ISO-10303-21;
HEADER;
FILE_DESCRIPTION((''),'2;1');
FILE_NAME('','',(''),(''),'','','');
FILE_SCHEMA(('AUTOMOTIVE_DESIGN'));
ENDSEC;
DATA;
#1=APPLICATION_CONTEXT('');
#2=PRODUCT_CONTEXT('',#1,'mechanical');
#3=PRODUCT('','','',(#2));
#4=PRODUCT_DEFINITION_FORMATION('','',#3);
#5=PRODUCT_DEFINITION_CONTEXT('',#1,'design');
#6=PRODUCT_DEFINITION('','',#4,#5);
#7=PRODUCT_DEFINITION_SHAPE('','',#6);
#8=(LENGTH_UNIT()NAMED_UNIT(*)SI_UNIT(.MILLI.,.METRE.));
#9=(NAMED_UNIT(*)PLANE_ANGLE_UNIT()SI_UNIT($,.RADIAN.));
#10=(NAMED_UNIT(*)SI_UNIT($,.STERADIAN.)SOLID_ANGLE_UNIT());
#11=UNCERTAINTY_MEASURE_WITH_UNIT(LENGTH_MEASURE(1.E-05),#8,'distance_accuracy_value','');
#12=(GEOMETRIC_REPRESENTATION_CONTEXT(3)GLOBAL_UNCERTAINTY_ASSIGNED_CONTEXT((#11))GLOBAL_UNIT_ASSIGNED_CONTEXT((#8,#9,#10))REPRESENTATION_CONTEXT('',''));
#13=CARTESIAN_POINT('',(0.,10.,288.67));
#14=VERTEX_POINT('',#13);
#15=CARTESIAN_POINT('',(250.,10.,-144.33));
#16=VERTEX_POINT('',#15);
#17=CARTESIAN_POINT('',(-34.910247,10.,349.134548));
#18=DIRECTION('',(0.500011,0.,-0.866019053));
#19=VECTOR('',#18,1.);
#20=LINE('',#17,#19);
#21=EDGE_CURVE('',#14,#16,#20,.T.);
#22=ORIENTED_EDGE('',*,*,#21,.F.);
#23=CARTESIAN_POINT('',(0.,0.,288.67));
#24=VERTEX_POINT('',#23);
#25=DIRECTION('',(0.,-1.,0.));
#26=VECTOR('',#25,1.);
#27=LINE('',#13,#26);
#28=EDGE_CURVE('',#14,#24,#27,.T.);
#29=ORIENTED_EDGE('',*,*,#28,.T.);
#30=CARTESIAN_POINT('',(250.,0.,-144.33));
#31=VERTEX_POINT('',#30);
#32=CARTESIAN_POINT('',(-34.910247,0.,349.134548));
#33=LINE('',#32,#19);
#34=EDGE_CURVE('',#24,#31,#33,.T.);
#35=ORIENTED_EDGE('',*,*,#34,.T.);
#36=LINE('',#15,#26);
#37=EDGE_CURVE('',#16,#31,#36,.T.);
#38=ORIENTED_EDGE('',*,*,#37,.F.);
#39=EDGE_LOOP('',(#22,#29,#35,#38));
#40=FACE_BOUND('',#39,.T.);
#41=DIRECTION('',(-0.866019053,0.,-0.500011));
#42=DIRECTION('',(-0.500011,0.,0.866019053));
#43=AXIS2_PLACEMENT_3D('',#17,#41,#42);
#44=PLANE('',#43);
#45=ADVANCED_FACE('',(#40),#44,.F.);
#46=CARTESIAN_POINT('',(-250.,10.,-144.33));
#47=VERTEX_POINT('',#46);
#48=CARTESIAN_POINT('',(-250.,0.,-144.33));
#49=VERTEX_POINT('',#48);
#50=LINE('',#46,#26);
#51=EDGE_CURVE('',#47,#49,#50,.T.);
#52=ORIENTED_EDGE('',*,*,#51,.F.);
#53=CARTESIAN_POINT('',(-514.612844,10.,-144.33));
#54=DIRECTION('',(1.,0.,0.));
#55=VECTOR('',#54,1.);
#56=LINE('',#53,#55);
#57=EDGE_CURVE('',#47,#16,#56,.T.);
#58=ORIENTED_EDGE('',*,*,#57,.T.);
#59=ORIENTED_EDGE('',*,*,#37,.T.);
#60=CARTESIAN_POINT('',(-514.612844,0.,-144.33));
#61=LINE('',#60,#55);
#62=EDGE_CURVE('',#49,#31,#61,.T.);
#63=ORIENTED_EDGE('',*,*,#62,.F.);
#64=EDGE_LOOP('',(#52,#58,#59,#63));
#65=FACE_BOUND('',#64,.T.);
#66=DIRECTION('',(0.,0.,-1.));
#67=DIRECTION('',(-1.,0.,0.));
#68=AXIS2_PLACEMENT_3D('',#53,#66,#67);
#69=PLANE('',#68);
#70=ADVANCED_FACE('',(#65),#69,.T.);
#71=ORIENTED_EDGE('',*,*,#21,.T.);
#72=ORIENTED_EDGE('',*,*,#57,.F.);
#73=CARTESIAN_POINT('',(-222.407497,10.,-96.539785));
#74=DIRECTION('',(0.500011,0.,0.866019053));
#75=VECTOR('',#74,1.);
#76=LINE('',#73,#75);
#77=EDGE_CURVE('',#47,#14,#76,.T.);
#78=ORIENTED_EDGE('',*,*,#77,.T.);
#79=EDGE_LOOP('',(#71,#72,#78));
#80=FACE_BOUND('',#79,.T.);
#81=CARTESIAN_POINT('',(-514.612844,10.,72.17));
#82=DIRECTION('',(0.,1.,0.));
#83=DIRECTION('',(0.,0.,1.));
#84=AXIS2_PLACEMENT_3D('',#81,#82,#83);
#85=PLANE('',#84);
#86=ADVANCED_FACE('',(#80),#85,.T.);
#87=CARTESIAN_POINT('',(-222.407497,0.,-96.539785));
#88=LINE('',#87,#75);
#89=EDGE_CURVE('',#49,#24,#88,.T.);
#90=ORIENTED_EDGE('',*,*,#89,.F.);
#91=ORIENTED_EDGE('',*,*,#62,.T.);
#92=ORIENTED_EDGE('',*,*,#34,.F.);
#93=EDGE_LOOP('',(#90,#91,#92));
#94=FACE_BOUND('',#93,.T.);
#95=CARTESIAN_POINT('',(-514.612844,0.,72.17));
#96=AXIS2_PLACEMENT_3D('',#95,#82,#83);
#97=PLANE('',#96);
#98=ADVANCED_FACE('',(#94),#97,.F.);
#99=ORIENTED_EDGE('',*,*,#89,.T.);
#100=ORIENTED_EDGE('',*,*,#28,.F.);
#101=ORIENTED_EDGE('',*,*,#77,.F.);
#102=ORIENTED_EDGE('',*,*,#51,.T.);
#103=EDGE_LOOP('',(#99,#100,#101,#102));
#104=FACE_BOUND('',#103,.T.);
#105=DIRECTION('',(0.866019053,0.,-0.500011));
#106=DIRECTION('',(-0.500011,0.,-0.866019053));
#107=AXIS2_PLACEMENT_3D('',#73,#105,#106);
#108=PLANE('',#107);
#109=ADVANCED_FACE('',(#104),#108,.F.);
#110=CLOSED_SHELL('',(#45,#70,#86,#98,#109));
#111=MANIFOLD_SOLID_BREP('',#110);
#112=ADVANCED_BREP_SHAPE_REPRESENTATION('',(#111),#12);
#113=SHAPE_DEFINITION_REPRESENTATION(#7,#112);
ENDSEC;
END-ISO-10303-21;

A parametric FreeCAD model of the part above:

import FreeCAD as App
import Part
import Sketcher
from FreeCAD import Vector
Q = App.Units.Quantity

doc = App.newDocument("Part")
body = doc.addObject("PartDesign::Body", "Body")

sketch1 = doc.addObject("Sketcher::SketchObject", "Sketch")
body.addObject(sketch1)
sketch1.AttachmentSupport = (doc.XZ_Plane, [""])
sketch1.MapMode = "FlatFace"
sketch1.addGeometry(Part.LineSegment(Vector(-250, -144, 0), Vector(0, 289, 0)), False)
sketch1.addGeometry(Part.LineSegment(Vector(0, 289, 0), Vector(250, -144, 0)), False)
sketch1.addGeometry(Part.LineSegment(Vector(250, -144, 0), Vector(-250, -144, 0)), False)
sketch1.addConstraint(Sketcher.Constraint("Coincident", 0, 2, 1, 1))
sketch1.addConstraint(Sketcher.Constraint("Coincident", 1, 2, 2, 1))
sketch1.addConstraint(Sketcher.Constraint("Coincident", 2, 2, 0, 1))
sketch1.addConstraint(Sketcher.Constraint("Horizontal", 2))
sketch1.addConstraint(Sketcher.Constraint("PointOnObject", 0, 2, -2))
sketch1.addConstraint(Sketcher.Constraint("Equal", 0, 1))
sketch1.addConstraint(Sketcher.Constraint("DistanceX", 2, 2, 2, 1, Q("500 mm")))
sketch1.addConstraint(Sketcher.Constraint("DistanceY", 1, 2, 0, 2, Q("433 mm")))
sketch1.addConstraint(Sketcher.Constraint("DistanceY", -1, 1, 0, 2, Q("288.67 mm")))
pad1 = doc.addObject("PartDesign::Pad", "Pad")
body.addObject(pad1)
pad1.Profile = sketch1
pad1.Length = 10
pad1.Reversed = True

doc.recompute()
